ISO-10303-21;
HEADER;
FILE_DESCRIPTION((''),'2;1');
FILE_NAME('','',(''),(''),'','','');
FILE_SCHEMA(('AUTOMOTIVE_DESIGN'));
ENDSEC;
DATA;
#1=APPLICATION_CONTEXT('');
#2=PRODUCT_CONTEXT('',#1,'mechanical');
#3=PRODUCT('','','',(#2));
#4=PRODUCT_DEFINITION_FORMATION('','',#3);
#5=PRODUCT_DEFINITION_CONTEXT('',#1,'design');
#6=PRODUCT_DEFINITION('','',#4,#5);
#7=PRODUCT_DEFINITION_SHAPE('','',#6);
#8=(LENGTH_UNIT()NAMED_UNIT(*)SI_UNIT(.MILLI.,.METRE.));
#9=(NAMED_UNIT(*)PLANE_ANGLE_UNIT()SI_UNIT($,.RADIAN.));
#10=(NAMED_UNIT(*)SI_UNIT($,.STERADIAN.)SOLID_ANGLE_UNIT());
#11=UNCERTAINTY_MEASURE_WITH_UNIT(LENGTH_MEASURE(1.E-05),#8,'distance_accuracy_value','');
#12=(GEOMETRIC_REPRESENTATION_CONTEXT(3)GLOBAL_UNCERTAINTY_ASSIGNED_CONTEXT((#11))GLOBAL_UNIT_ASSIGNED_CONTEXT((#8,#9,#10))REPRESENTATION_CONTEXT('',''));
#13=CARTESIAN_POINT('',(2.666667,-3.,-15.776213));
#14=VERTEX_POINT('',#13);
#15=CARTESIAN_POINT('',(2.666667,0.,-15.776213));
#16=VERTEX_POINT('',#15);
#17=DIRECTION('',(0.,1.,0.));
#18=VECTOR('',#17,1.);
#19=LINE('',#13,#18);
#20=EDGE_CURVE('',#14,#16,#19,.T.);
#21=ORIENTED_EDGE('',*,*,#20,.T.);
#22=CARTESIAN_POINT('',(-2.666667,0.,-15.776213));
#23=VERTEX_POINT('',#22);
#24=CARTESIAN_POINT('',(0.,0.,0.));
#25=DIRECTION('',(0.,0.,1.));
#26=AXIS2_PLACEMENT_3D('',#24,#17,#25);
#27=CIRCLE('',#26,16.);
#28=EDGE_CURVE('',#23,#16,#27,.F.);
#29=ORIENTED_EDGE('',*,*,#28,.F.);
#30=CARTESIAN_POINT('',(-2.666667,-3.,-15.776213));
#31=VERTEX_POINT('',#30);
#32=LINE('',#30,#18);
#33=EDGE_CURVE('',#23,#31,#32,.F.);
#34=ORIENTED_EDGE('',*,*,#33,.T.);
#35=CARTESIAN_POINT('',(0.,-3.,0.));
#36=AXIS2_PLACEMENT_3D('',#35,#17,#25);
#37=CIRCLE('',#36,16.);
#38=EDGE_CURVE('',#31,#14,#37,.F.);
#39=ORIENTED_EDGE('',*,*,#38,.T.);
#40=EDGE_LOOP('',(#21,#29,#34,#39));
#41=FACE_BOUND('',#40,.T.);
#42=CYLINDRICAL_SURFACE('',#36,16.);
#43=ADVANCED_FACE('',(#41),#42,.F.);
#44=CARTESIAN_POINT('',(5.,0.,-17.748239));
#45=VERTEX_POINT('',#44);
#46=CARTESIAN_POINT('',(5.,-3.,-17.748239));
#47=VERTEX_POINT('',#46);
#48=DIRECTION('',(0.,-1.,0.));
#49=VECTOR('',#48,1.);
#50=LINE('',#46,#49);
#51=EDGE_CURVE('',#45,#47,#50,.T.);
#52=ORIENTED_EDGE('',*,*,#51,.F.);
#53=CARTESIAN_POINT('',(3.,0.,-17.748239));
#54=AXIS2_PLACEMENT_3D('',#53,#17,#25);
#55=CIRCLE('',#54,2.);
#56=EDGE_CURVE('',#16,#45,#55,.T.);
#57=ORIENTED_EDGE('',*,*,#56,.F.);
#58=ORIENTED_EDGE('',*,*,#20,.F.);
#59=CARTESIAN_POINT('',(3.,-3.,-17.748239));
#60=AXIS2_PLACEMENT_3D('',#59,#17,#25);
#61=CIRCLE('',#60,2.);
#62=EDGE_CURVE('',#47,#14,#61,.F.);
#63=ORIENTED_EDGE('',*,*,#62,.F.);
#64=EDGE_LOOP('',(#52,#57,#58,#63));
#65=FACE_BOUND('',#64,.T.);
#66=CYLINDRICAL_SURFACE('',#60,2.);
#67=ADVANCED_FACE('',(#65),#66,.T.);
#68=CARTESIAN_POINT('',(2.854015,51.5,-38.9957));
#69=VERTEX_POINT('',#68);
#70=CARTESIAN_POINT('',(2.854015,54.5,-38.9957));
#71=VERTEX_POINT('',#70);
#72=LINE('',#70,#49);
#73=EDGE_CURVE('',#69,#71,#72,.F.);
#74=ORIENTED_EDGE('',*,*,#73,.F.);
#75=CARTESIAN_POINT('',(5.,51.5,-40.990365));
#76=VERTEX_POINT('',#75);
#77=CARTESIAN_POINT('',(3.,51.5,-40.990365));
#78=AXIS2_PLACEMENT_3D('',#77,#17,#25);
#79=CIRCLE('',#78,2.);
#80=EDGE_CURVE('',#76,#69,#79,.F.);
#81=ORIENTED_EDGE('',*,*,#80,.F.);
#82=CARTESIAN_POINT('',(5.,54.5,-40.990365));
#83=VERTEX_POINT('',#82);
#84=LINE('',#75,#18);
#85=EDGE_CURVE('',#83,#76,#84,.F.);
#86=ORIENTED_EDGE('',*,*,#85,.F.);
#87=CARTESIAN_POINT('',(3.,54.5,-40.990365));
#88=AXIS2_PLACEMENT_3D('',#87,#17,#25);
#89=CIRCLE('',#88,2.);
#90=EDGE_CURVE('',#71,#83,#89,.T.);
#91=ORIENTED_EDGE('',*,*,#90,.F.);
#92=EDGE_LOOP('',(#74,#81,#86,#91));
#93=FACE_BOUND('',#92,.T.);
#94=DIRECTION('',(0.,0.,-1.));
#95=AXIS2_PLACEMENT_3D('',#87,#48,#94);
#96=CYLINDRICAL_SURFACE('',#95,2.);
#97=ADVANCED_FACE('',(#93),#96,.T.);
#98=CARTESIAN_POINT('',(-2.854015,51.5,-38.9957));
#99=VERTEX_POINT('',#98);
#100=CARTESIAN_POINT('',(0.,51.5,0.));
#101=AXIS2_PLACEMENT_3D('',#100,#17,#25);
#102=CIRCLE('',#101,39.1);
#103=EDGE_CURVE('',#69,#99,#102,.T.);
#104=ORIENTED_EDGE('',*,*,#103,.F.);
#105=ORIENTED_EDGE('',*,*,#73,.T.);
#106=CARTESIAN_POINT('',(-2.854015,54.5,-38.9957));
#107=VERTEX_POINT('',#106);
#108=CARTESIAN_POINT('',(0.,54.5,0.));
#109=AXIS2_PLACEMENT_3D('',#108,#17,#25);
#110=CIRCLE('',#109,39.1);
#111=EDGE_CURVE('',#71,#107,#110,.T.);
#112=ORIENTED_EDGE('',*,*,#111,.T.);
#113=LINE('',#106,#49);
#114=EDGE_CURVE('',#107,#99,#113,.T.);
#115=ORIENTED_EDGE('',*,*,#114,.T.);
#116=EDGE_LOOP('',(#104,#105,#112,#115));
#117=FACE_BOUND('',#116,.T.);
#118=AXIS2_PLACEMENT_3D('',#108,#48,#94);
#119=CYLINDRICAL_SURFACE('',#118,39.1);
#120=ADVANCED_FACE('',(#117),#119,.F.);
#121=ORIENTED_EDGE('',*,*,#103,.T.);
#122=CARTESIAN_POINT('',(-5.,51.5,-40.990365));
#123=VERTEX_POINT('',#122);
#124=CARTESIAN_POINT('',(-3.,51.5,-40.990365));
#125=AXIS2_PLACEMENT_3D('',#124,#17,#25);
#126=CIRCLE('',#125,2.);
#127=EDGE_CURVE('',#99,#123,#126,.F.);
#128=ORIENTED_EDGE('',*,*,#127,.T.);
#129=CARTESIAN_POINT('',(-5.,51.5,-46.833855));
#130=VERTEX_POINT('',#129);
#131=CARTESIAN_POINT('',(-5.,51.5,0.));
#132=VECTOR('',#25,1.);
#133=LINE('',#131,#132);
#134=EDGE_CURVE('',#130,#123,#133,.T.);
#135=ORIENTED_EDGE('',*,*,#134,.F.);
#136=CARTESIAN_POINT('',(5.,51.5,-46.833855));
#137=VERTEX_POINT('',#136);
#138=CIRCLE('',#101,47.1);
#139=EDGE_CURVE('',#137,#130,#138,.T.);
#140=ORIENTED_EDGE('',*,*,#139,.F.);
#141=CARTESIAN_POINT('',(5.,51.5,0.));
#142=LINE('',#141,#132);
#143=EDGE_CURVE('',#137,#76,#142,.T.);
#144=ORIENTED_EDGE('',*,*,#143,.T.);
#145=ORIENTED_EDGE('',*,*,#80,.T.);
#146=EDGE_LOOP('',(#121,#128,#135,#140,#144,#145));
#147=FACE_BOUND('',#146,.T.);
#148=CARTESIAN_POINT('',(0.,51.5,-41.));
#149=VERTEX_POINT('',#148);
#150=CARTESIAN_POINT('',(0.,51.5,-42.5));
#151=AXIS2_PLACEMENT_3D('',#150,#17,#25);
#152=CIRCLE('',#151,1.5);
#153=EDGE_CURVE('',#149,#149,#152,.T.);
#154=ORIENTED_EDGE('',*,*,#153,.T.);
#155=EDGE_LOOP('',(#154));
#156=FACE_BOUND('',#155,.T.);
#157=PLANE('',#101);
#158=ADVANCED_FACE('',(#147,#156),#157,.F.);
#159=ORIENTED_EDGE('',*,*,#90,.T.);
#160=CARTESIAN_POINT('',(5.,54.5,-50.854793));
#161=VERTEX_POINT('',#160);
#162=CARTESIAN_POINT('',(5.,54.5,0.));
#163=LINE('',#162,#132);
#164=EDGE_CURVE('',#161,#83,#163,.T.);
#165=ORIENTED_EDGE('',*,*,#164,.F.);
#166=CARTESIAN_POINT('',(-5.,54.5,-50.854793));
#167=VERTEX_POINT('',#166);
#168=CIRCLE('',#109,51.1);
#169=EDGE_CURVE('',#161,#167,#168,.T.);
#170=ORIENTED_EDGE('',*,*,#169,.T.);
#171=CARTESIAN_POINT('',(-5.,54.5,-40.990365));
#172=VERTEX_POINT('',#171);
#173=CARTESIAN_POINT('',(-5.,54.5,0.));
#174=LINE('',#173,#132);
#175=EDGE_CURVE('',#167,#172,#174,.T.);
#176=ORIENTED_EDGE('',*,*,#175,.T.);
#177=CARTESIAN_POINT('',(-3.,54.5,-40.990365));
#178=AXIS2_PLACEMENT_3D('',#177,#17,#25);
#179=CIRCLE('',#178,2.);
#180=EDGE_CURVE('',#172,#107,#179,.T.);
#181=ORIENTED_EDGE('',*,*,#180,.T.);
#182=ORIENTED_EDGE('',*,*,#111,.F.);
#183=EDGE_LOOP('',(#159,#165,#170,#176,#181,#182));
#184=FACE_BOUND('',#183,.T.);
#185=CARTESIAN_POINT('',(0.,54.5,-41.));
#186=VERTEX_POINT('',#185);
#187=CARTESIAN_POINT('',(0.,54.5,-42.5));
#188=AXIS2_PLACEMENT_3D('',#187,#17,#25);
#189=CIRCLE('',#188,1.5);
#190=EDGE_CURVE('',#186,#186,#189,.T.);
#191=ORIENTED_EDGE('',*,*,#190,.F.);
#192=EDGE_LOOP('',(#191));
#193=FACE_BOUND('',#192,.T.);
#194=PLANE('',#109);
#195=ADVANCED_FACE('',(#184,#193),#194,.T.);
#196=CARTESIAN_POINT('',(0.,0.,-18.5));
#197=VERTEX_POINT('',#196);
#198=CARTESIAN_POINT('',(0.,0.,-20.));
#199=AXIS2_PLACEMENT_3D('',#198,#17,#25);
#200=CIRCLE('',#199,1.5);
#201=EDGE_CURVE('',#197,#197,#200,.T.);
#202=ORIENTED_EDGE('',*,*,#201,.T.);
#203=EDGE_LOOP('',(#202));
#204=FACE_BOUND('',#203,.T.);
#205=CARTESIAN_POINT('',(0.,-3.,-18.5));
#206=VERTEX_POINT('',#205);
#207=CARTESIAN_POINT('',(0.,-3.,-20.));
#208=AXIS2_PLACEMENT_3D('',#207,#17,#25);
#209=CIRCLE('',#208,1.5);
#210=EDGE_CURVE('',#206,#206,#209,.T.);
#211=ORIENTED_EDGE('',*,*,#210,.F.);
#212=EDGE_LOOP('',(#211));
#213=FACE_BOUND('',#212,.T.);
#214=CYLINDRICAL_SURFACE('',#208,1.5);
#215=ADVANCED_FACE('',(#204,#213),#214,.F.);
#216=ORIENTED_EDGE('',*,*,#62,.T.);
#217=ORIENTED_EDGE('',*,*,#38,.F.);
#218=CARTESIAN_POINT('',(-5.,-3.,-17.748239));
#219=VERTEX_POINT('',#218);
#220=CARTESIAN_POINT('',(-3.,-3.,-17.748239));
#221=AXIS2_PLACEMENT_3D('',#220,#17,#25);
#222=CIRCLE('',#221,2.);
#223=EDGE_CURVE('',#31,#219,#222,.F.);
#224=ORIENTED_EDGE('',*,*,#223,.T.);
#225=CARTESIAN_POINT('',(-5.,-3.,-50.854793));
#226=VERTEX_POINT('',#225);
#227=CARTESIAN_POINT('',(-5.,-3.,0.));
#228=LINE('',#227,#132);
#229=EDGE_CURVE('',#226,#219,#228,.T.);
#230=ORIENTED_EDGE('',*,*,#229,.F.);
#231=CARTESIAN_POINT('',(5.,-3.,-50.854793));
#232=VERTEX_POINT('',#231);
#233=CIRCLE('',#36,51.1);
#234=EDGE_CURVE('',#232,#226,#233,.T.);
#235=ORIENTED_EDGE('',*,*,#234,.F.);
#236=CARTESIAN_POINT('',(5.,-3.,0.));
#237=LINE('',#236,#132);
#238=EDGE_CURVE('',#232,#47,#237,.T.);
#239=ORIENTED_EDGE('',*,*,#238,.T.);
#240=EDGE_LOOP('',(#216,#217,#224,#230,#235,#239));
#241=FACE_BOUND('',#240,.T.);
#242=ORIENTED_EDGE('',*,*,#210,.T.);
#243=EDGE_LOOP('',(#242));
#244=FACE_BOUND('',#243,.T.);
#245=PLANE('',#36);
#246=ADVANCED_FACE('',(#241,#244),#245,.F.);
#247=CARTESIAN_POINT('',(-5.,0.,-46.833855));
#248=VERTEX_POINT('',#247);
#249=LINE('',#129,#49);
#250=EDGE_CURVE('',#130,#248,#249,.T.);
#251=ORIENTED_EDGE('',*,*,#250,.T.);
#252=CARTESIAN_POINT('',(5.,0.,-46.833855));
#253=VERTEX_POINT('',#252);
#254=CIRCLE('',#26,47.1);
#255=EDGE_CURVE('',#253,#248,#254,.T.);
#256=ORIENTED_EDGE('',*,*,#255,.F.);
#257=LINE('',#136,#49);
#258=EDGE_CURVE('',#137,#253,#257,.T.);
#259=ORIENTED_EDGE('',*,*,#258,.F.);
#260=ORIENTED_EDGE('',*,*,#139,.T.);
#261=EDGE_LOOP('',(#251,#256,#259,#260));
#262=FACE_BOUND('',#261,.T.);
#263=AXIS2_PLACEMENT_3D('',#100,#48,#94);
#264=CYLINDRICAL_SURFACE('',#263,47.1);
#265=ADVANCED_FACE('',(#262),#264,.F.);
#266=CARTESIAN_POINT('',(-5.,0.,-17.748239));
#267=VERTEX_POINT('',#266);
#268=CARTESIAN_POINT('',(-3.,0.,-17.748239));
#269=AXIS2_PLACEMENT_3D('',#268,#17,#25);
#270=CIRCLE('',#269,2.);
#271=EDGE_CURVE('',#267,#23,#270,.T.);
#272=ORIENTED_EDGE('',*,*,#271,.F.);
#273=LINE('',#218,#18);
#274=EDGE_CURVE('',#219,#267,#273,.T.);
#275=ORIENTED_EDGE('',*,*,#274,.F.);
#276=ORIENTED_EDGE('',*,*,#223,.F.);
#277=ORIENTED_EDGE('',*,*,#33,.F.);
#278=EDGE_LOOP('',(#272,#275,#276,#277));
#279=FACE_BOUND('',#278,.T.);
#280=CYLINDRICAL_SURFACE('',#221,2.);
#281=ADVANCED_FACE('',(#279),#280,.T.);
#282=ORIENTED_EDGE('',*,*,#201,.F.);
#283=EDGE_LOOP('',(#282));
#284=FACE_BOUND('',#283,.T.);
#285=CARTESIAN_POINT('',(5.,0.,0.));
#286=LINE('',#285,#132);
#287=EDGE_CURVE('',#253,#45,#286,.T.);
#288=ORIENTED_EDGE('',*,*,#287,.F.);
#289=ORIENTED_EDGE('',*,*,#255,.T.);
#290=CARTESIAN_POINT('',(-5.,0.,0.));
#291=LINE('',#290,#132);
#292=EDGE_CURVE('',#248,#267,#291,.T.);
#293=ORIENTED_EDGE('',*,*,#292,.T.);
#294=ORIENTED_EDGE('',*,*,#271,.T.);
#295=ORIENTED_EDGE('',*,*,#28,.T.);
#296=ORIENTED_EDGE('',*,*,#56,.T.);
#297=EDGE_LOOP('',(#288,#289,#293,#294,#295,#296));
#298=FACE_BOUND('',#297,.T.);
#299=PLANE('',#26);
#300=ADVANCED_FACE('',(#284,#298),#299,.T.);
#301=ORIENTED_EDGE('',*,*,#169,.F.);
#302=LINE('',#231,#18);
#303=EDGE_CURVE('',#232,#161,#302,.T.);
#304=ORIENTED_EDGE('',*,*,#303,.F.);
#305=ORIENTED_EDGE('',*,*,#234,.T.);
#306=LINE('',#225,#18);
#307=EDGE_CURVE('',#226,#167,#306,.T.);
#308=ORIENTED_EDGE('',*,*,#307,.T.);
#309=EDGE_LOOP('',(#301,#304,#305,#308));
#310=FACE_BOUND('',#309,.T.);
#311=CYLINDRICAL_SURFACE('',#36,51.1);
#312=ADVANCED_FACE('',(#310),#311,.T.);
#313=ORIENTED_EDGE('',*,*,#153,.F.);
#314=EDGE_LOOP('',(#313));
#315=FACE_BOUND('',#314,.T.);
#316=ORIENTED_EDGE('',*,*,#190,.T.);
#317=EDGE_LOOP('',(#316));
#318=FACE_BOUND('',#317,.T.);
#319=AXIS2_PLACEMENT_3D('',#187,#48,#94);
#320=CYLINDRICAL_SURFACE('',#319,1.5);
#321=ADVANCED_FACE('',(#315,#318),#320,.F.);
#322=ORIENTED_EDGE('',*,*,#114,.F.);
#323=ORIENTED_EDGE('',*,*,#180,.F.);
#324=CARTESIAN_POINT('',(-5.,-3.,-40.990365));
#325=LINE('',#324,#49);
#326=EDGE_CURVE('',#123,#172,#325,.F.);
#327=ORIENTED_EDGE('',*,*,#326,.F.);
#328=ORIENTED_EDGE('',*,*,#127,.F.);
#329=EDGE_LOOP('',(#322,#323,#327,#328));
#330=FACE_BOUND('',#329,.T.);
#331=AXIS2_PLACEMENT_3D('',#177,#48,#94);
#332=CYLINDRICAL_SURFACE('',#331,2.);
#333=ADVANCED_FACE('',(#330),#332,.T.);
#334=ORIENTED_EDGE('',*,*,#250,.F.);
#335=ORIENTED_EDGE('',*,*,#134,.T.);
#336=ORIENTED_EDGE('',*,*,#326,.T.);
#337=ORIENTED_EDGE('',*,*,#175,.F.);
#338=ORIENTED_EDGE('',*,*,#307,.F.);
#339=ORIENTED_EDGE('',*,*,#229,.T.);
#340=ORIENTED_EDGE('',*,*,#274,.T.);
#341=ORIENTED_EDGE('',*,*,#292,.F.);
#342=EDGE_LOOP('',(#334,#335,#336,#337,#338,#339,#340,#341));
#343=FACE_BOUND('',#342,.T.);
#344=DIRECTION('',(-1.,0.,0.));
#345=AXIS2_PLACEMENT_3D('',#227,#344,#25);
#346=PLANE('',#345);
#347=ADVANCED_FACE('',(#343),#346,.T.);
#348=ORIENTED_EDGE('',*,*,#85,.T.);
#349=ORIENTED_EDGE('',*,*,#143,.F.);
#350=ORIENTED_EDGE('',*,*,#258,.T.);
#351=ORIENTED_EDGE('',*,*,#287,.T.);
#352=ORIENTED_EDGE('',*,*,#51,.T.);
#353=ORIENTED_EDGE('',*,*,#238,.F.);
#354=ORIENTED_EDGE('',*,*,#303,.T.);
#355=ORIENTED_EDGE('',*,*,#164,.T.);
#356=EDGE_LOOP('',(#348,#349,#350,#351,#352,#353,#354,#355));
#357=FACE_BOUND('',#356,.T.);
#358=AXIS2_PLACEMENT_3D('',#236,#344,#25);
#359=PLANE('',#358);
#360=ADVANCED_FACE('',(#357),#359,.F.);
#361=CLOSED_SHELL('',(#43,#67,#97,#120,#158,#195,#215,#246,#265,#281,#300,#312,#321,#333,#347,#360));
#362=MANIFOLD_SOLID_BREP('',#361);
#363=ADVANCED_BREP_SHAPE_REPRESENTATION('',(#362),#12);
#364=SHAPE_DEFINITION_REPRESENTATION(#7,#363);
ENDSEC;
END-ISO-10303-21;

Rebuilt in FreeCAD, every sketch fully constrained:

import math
import FreeCAD as App
import Part
import Sketcher


def edges_at(feature, points):
    """Names of the edges that pass closest to the given points."""
    edges = feature.Shape.Edges
    near = lambda p: min(range(len(edges)), key=lambda i: edges[i].distToShape(Part.Vertex(*p))[0])
    return sorted({f"Edge{near(p) + 1}" for p in points})

doc = App.newDocument("Part")
body = doc.addObject("PartDesign::Body", "Body")

sketch1 = body.newObject("Sketcher::SketchObject", "Sketch")
sketch1.AttachmentSupport = (doc.getObject("XZ_Plane"), [""])
sketch1.MapMode = "FlatFace"
sketch1.addGeometry([
    Part.ArcOfCircle(Part.Circle(App.Vector(0, 0, 0), App.Vector(0, 0, 1), 51.1), math.radians(-95.62), math.radians(-84.38)),
    Part.LineSegment(App.Vector(-5, -50.9, 0), App.Vector(-5, -15.2, 0)),
    Part.ArcOfCircle(Part.Circle(App.Vector(0, 0, 0), App.Vector(0, 0, 1), 16), math.radians(-108), math.radians(-72)),
    Part.LineSegment(App.Vector(5, -15.2, 0), App.Vector(5, -50.9, 0)),
    Part.Circle(App.Vector(0, -20, 0), App.Vector(0, 0, 1), 1.5),
], False)
sketch1.addConstraint([
    Sketcher.Constraint("Coincident", 0, 1, 1, 1),
    Sketcher.Constraint("Coincident", 1, 2, 2, 1),
    Sketcher.Constraint("Coincident", 2, 2, 3, 1),
    Sketcher.Constraint("Coincident", 3, 2, 0, 2),
    Sketcher.Constraint("Vertical", 1),
    Sketcher.Constraint("Vertical", 3),
    Sketcher.Constraint("Coincident", 0, 3, -1, 1),
    Sketcher.Constraint("Coincident", 2, 3, -1, 1),
    Sketcher.Constraint("PointOnObject", 4, 3, -2),
    Sketcher.Constraint("Horizontal", 1, 2, 2, 2),
    Sketcher.Constraint("Diameter", 4, 3.0),
    Sketcher.Constraint("Radius", 2, 16.0),
    Sketcher.Constraint("Radius", 0, 51.1),
    Sketcher.Constraint("DistanceY", 4, 3, -1, 1, 20.0),
    Sketcher.Constraint("DistanceX", 0, 1, -1, 1, 5.0),
])
pad1 = body.newObject("PartDesign::Pad", "Pad")
pad1.Profile = sketch1
pad1.Length = 3

sketch2 = body.newObject("Sketcher::SketchObject", "Sketch001")
sketch2.AttachmentSupport = (doc.getObject("XZ_Plane"), [""])
sketch2.MapMode = "FlatFace"
sketch2.AttachmentOffset = App.Placement(App.Vector(0, 0, -51.5), App.Rotation())
sketch2.addGeometry([
    Part.ArcOfCircle(Part.Circle(App.Vector(0, 0, 0), App.Vector(0, 0, 1), 51.1), math.radians(-95.62), math.radians(-84.38)),
    Part.LineSegment(App.Vector(-5, -50.9, 0), App.Vector(-5, -46.8, 0)),
    Part.ArcOfCircle(Part.Circle(App.Vector(0, 0, 0), App.Vector(0, 0, 1), 47.1), math.radians(-96.09), math.radians(-83.91)),
    Part.LineSegment(App.Vector(5, -46.8, 0), App.Vector(5, -50.9, 0)),
], False)
sketch2.addConstraint([
    Sketcher.Constraint("Coincident", 0, 1, 1, 1),
    Sketcher.Constraint("Coincident", 1, 2, 2, 1),
    Sketcher.Constraint("Coincident", 2, 2, 3, 1),
    Sketcher.Constraint("Coincident", 3, 2, 0, 2),
    Sketcher.Constraint("Vertical", 1),
    Sketcher.Constraint("Vertical", 3),
    Sketcher.Constraint("Coincident", 0, 3, -1, 1),
    Sketcher.Constraint("Coincident", 2, 3, -1, 1),
    Sketcher.Constraint("Horizontal", 1, 2, 2, 2),
    Sketcher.Constraint("Radius", 0, 51.1),
    Sketcher.Constraint("Radius", 2, 47.1),
    Sketcher.Constraint("DistanceX", 0, 1, -1, 1, 5.0),
])
pad2 = body.newObject("PartDesign::Pad", "Pad001")
pad2.Profile = sketch2
pad2.Length = 51.5

sketch3 = body.newObject("Sketcher::SketchObject", "Sketch002")
sketch3.AttachmentSupport = (doc.getObject("XZ_Plane"), [""])
sketch3.MapMode = "FlatFace"
sketch3.AttachmentOffset = App.Placement(App.Vector(0, 0, -54.5), App.Rotation())
sketch3.addGeometry([
    Part.LineSegment(App.Vector(5, -38.8, 0), App.Vector(5, -50.9, 0)),
    Part.ArcOfCircle(Part.Circle(App.Vector(0, 0, 0), App.Vector(0, 0, 1), 51.1), math.radians(-95.62), math.radians(-84.38)),
    Part.LineSegment(App.Vector(-5, -50.9, 0), App.Vector(-5, -38.8, 0)),
    Part.ArcOfCircle(Part.Circle(App.Vector(0, 0, 0), App.Vector(0, 0, 1), 39.1), math.radians(-97.35), math.radians(-82.65)),
    Part.Circle(App.Vector(0, -42.5, 0), App.Vector(0, 0, 1), 1.5),
], False)
sketch3.addConstraint([
    Sketcher.Constraint("Coincident", 0, 2, 1, 2),
    Sketcher.Constraint("Coincident", 1, 1, 2, 1),
    Sketcher.Constraint("Coincident", 2, 2, 3, 1),
    Sketcher.Constraint("Coincident", 3, 2, 0, 1),
    Sketcher.Constraint("Vertical", 0),
    Sketcher.Constraint("Vertical", 2),
    Sketcher.Constraint("Coincident", 1, 3, -1, 1),
    Sketcher.Constraint("Coincident", 3, 3, -1, 1),
    Sketcher.Constraint("PointOnObject", 4, 3, -2),
    Sketcher.Constraint("Horizontal", 0, 2, 1, 1),
    Sketcher.Constraint("Diameter", 4, 3.0),
    Sketcher.Constraint("Radius", 1, 51.1),
    Sketcher.Constraint("Radius", 3, 39.1),
    Sketcher.Constraint("DistanceX", -1, 1, 0, 2, 5.0),
    Sketcher.Constraint("DistanceY", 4, 3, -1, 1, 42.5),
])
pad3 = body.newObject("PartDesign::Pad", "Pad002")
pad3.Profile = sketch3
pad3.Length = 3
doc.recompute()

fillet = body.newObject("PartDesign::Fillet", "Fillet")
fillet.Base = (pad3, edges_at(pad3, [
    (5, -1.5, -15.199),
    (-5, -1.5, -15.199),
    (5, 53, -38.779),
    (-5, 53, -38.779),
]))
fillet.Radius = 2

doc.recompute()
